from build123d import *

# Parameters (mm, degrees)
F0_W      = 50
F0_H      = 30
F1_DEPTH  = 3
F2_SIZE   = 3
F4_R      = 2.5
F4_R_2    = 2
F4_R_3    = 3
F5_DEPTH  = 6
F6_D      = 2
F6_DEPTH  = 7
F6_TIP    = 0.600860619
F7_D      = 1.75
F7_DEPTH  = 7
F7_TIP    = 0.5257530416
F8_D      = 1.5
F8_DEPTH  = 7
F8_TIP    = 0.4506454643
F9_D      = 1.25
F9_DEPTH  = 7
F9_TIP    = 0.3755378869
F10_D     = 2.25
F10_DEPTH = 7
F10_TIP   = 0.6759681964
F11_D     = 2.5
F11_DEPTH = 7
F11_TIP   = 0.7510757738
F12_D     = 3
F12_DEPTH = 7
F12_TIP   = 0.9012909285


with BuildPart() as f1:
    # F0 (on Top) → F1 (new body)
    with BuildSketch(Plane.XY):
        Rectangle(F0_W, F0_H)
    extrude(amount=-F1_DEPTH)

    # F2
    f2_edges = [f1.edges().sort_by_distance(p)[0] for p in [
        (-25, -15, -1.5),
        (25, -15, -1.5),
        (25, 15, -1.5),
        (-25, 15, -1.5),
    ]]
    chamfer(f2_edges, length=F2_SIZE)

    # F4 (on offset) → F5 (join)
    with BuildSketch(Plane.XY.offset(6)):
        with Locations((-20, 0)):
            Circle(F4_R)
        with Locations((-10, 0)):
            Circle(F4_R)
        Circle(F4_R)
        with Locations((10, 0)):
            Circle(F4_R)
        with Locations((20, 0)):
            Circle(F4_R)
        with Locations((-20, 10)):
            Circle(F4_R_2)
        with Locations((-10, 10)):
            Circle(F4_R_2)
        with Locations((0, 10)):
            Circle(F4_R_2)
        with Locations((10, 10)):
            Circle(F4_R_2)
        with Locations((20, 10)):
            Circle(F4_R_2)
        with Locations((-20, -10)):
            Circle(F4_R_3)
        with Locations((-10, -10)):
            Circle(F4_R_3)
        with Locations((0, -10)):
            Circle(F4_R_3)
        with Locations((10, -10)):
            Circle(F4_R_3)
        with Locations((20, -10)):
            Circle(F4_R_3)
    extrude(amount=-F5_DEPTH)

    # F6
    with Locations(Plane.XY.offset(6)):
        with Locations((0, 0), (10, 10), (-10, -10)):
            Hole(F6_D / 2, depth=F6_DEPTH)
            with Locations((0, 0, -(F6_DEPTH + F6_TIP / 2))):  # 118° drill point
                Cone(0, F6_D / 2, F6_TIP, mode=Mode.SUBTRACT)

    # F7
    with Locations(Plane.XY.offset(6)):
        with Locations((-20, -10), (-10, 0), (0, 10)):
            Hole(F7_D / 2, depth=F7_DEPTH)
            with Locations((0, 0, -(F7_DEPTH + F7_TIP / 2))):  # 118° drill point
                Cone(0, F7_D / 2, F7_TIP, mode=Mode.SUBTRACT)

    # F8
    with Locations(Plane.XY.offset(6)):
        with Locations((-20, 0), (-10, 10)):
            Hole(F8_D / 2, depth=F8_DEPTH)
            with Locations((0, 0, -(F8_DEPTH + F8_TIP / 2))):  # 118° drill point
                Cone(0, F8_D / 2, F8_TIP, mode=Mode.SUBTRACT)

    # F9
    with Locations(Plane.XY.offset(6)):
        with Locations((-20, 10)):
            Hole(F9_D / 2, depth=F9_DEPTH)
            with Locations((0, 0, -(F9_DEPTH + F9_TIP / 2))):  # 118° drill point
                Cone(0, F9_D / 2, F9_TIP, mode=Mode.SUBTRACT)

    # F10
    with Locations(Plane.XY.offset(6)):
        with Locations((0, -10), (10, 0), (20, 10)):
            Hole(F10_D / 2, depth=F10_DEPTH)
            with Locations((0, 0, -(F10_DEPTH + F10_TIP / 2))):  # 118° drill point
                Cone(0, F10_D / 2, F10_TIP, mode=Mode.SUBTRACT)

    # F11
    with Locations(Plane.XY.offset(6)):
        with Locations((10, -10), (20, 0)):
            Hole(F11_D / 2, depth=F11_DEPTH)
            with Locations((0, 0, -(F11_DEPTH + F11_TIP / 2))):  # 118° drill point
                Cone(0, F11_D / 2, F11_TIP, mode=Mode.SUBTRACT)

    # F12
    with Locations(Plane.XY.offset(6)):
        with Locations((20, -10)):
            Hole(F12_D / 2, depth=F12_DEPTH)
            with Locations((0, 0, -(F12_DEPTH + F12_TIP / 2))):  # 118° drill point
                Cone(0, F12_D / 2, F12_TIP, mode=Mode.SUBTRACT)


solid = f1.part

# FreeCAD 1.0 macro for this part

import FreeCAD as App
import Part
import Sketcher
from FreeCAD import Vector
Q = App.Units.Quantity


def edges_at(feature, points):
    """Names of the edges that pass closest to the given points."""
    edges = feature.Shape.Edges
    near = lambda p: min(range(len(edges)), key=lambda i: edges[i].distToShape(Part.Vertex(*p))[0])
    return sorted({f"Edge{near(p) + 1}" for p in points})

doc = App.newDocument("Part")
body = doc.addObject("PartDesign::Body", "Body")

sketch1 = body.newObject("Sketcher::SketchObject", "Sketch")
sketch1.AttachmentSupport = (doc.getObject("XY_Plane"), [""])
sketch1.MapMode = "FlatFace"
sketch1.addGeometry(Part.LineSegment(Vector(-25, 15, 0), Vector(-25, -15, 0)), False)
sketch1.addGeometry(Part.LineSegment(Vector(-25, -15, 0), Vector(25, -15, 0)), False)
sketch1.addGeometry(Part.LineSegment(Vector(25, -15, 0), Vector(25, 15, 0)), False)
sketch1.addGeometry(Part.LineSegment(Vector(25, 15, 0), Vector(-25, 15, 0)), False)
sketch1.addConstraint(Sketcher.Constraint("Coincident", 0, 2, 1, 1))
sketch1.addConstraint(Sketcher.Constraint("Coincident", 1, 2, 2, 1))
sketch1.addConstraint(Sketcher.Constraint("Coincident", 2, 2, 3, 1))
sketch1.addConstraint(Sketcher.Constraint("Coincident", 3, 2, 0, 1))
sketch1.addConstraint(Sketcher.Constraint("Vertical", 0))
sketch1.addConstraint(Sketcher.Constraint("Horizontal", 1))
sketch1.addConstraint(Sketcher.Constraint("Vertical", 2))
sketch1.addConstraint(Sketcher.Constraint("Horizontal", 3))
sketch1.addConstraint(Sketcher.Constraint("Symmetric", 0, 2, 2, 2, -1, 1))
sketch1.addConstraint(Sketcher.Constraint("DistanceX", 1, 1, 1, 2, Q("50 mm")))
sketch1.addConstraint(Sketcher.Constraint("DistanceY", 0, 2, 0, 1, Q("30 mm")))
pad1 = body.newObject("PartDesign::Pad", "Pad")
pad1.Profile = sketch1
pad1.Length = 3
pad1.Reversed = True
doc.recompute()

chamfer = body.newObject("PartDesign::Chamfer", "Chamfer")
chamfer.Base = (pad1, edges_at(pad1, [
    (-25, -15, -1.5),
    (25, -15, -1.5),
    (25, 15, -1.5),
    (-25, 15, -1.5),
]))
chamfer.Size = 3

sketch2 = body.newObject("Sketcher::SketchObject", "Sketch001")
sketch2.AttachmentSupport = (doc.getObject("XY_Plane"), [""])
sketch2.MapMode = "FlatFace"
sketch2.AttachmentOffset = App.Placement(Vector(0, 0, 6), App.Rotation())
sketch2.addGeometry(Part.Circle(Vector(-20, 0, 0), Vector(0, 0, 1), 2.5), False)
sketch2.addGeometry(Part.Circle(Vector(-10, 0, 0), Vector(0, 0, 1), 2.5), False)
sketch2.addGeometry(Part.Circle(Vector(0, 0, 0), Vector(0, 0, 1), 2.5), False)
sketch2.addGeometry(Part.Circle(Vector(10, 0, 0), Vector(0, 0, 1), 2.5), False)
sketch2.addGeometry(Part.Circle(Vector(20, 0, 0), Vector(0, 0, 1), 2.5), False)
sketch2.addGeometry(Part.Circle(Vector(-20, 10, 0), Vector(0, 0, 1), 2), False)
sketch2.addGeometry(Part.Circle(Vector(-10, 10, 0), Vector(0, 0, 1), 2), False)
sketch2.addGeometry(Part.Circle(Vector(0, 10, 0), Vector(0, 0, 1), 2), False)
sketch2.addGeometry(Part.Circle(Vector(10, 10, 0), Vector(0, 0, 1), 2), False)
sketch2.addGeometry(Part.Circle(Vector(20, 10, 0), Vector(0, 0, 1), 2), False)
sketch2.addGeometry(Part.Circle(Vector(-20, -10, 0), Vector(0, 0, 1), 3), False)
sketch2.addGeometry(Part.Circle(Vector(-10, -10, 0), Vector(0, 0, 1), 3), False)
sketch2.addGeometry(Part.Circle(Vector(0, -10, 0), Vector(0, 0, 1), 3), False)
sketch2.addGeometry(Part.Circle(Vector(10, -10, 0), Vector(0, 0, 1), 3), False)
sketch2.addGeometry(Part.Circle(Vector(20, -10, 0), Vector(0, 0, 1), 3), False)
sketch2.addConstraint(Sketcher.Constraint("Coincident", 2, 3, -1, 1))
sketch2.addConstraint(Sketcher.Constraint("Equal", 0, 1))
sketch2.addConstraint(Sketcher.Constraint("Equal", 1, 2))
sketch2.addConstraint(Sketcher.Constraint("Equal", 2, 3))
sketch2.addConstraint(Sketcher.Constraint("Equal", 3, 4))
sketch2.addConstraint(Sketcher.Constraint("Equal", 5, 6))
sketch2.addConstraint(Sketcher.Constraint("Equal", 6, 7))
sketch2.addConstraint(Sketcher.Constraint("Equal", 7, 8))
sketch2.addConstraint(Sketcher.Constraint("Equal", 8, 9))
sketch2.addConstraint(Sketcher.Constraint("Equal", 10, 11))
sketch2.addConstraint(Sketcher.Constraint("Equal", 11, 12))
sketch2.addConstraint(Sketcher.Constraint("Equal", 12, 13))
sketch2.addConstraint(Sketcher.Constraint("Equal", 13, 14))
sketch2.addConstraint(Sketcher.Constraint("Symmetric", 1, 3, 3, 3, -1, 1))
sketch2.addConstraint(Sketcher.Constraint("Symmetric", 0, 3, 4, 3, -1, 1))
sketch2.addConstraint(Sketcher.Constraint("Symmetric", 9, 3, 10, 3, -1, 1))
sketch2.addConstraint(Sketcher.Constraint("Symmetric", 8, 3, 11, 3, -1, 1))
sketch2.addConstraint(Sketcher.Constraint("Symmetric", 7, 3, 12, 3, -1, 1))
sketch2.addConstraint(Sketcher.Constraint("Symmetric", 6, 3, 13, 3, -1, 1))
sketch2.addConstraint(Sketcher.Constraint("Symmetric", 5, 3, 14, 3, -1, 1))
sketch2.addConstraint(Sketcher.Constraint("Symmetric", 6, 3, 8, 3, -2))
sketch2.addConstraint(Sketcher.Constraint("Symmetric", 5, 3, 9, 3, -2))
sketch2.addConstraint(Sketcher.Constraint("PointOnObject", 0, 3, -1))
sketch2.addConstraint(Sketcher.Constraint("PointOnObject", 1, 3, -1))
sketch2.addConstraint(Sketcher.Constraint("PointOnObject", 7, 3, -2))
sketch2.addConstraint(Sketcher.Constraint("Horizontal", 5, 3, 6, 3))
sketch2.addConstraint(Sketcher.Constraint("Horizontal", 6, 3, 7, 3))
sketch2.addConstraint(Sketcher.Constraint("Vertical", 0, 3, 5, 3))
sketch2.addConstraint(Sketcher.Constraint("Vertical", 1, 3, 6, 3))
sketch2.addConstraint(Sketcher.Constraint("Diameter", 0, Q("5 mm")))
sketch2.addConstraint(Sketcher.Constraint("Diameter", 5, Q("4 mm")))
sketch2.addConstraint(Sketcher.Constraint("Diameter", 10, Q("6 mm")))
sketch2.addConstraint(Sketcher.Constraint("DistanceX", 0, 3, -1, 1, Q("20 mm")))
sketch2.addConstraint(Sketcher.Constraint("DistanceX", 1, 3, -1, 1, Q("10 mm")))
sketch2.addConstraint(Sketcher.Constraint("DistanceY", -1, 1, 5, 3, Q("10 mm")))
pad2 = body.newObject("PartDesign::Pad", "Pad001")
pad2.Profile = sketch2
pad2.Length = 6
pad2.Reversed = True

sketch3 = body.newObject("Sketcher::SketchObject", "Sketch002")
sketch3.AttachmentSupport = (doc.getObject("XY_Plane"), [""])
sketch3.MapMode = "FlatFace"
sketch3.AttachmentOffset = App.Placement(Vector(0, 0, 6), App.Rotation())
sketch3.addGeometry(Part.Circle(Vector(0, 0, 0), Vector(0, 0, 1), 1), False)
sketch3.addGeometry(Part.Circle(Vector(10, 10, 0), Vector(0, 0, 1), 1), False)
sketch3.addGeometry(Part.Circle(Vector(-10, -10, 0), Vector(0, 0, 1), 1), False)
sketch3.addConstraint(Sketcher.Constraint("Coincident", 0, 3, -1, 1))
sketch3.addConstraint(Sketcher.Constraint("Equal", 0, 1))
sketch3.addConstraint(Sketcher.Constraint("Equal", 1, 2))
sketch3.addConstraint(Sketcher.Constraint("Symmetric", 1, 3, 2, 3, -1, 1))
sketch3.addConstraint(Sketcher.Constraint("Diameter", 0, Q("2 mm")))
sketch3.addConstraint(Sketcher.Constraint("DistanceX", -1, 1, 1, 3, Q("10 mm")))
sketch3.addConstraint(Sketcher.Constraint("DistanceY", -1, 1, 1, 3, Q("10 mm")))
doc.recompute()
hole = body.newObject("PartDesign::Hole", "Hole")
hole.Profile = sketch3
hole.ThreadType = "None"
hole.Diameter = 2
hole.DepthType = "Dimension"
hole.Depth = 7
hole.DrillPoint = "Angled"
hole.DrillPointAngle = 118

sketch4 = body.newObject("Sketcher::SketchObject", "Sketch003")
sketch4.AttachmentSupport = (doc.getObject("XY_Plane"), [""])
sketch4.MapMode = "FlatFace"
sketch4.AttachmentOffset = App.Placement(Vector(0, 0, 6), App.Rotation())
sketch4.addGeometry(Part.Circle(Vector(-20, -10, 0), Vector(0, 0, 1), 0.875), False)
sketch4.addGeometry(Part.Circle(Vector(-10, 0, 0), Vector(0, 0, 1), 0.875), False)
sketch4.addGeometry(Part.Circle(Vector(0, 10, 0), Vector(0, 0, 1), 0.875), False)
sketch4.addConstraint(Sketcher.Constraint("Equal", 0, 1))
sketch4.addConstraint(Sketcher.Constraint("Equal", 1, 2))
sketch4.addConstraint(Sketcher.Constraint("PointOnObject", 1, 3, -1))
sketch4.addConstraint(Sketcher.Constraint("PointOnObject", 2, 3, -2))
sketch4.addConstraint(Sketcher.Constraint("Diameter", 0, Q("1.75 mm")))
sketch4.addConstraint(Sketcher.Constraint("DistanceX", 0, 3, -1, 1, Q("20 mm")))
sketch4.addConstraint(Sketcher.Constraint("DistanceY", 0, 3, -1, 1, Q("10 mm")))
sketch4.addConstraint(Sketcher.Constraint("DistanceX", 1, 3, -1, 1, Q("10 mm")))
sketch4.addConstraint(Sketcher.Constraint("DistanceY", -1, 1, 2, 3, Q("10 mm")))
doc.recompute()
hole2 = body.newObject("PartDesign::Hole", "Hole001")
hole2.Profile = sketch4
hole2.ThreadType = "None"
hole2.Diameter = 1.75
hole2.DepthType = "Dimension"
hole2.Depth = 7
hole2.DrillPoint = "Angled"
hole2.DrillPointAngle = 118

sketch5 = body.newObject("Sketcher::SketchObject", "Sketch004")
sketch5.AttachmentSupport = (doc.getObject("XY_Plane"), [""])
sketch5.MapMode = "FlatFace"
sketch5.AttachmentOffset = App.Placement(Vector(0, 0, 6), App.Rotation())
sketch5.addGeometry(Part.Circle(Vector(-20, 0, 0), Vector(0, 0, 1), 0.75), False)
sketch5.addGeometry(Part.Circle(Vector(-10, 10, 0), Vector(0, 0, 1), 0.75), False)
sketch5.addConstraint(Sketcher.Constraint("Equal", 0, 1))
sketch5.addConstraint(Sketcher.Constraint("PointOnObject", 0, 3, -1))
sketch5.addConstraint(Sketcher.Constraint("Diameter", 0, Q("1.5 mm")))
sketch5.addConstraint(Sketcher.Constraint("DistanceX", 0, 3, -1, 1, Q("20 mm")))
sketch5.addConstraint(Sketcher.Constraint("DistanceX", 1, 3, -1, 1, Q("10 mm")))
sketch5.addConstraint(Sketcher.Constraint("DistanceY", -1, 1, 1, 3, Q("10 mm")))
doc.recompute()
hole3 = body.newObject("PartDesign::Hole", "Hole002")
hole3.Profile = sketch5
hole3.ThreadType = "None"
hole3.Diameter = 1.5
hole3.DepthType = "Dimension"
hole3.Depth = 7
hole3.DrillPoint = "Angled"
hole3.DrillPointAngle = 118

sketch6 = body.newObject("Sketcher::SketchObject", "Sketch005")
sketch6.AttachmentSupport = (doc.getObject("XY_Plane"), [""])
sketch6.MapMode = "FlatFace"
sketch6.AttachmentOffset = App.Placement(Vector(0, 0, 6), App.Rotation())
sketch6.addGeometry(Part.Circle(Vector(-20, 10, 0), Vector(0, 0, 1), 0.625), False)
sketch6.addConstraint(Sketcher.Constraint("Diameter", 0, Q("1.25 mm")))
sketch6.addConstraint(Sketcher.Constraint("DistanceX", 0, 3, -1, 1, Q("20 mm")))
sketch6.addConstraint(Sketcher.Constraint("DistanceY", -1, 1, 0, 3, Q("10 mm")))
doc.recompute()
hole4 = body.newObject("PartDesign::Hole", "Hole003")
hole4.Profile = sketch6
hole4.ThreadType = "None"
hole4.Diameter = 1.25
hole4.DepthType = "Dimension"
hole4.Depth = 7
hole4.DrillPoint = "Angled"
hole4.DrillPointAngle = 118

sketch7 = body.newObject("Sketcher::SketchObject", "Sketch006")
sketch7.AttachmentSupport = (doc.getObject("XY_Plane"), [""])
sketch7.MapMode = "FlatFace"
sketch7.AttachmentOffset = App.Placement(Vector(0, 0, 6), App.Rotation())
sketch7.addGeometry(Part.Circle(Vector(0, -10, 0), Vector(0, 0, 1), 1.125), False)
sketch7.addGeometry(Part.Circle(Vector(10, 0, 0), Vector(0, 0, 1), 1.125), False)
sketch7.addGeometry(Part.Circle(Vector(20, 10, 0), Vector(0, 0, 1), 1.125), False)
sketch7.addConstraint(Sketcher.Constraint("Equal", 0, 1))
sketch7.addConstraint(Sketcher.Constraint("Equal", 1, 2))
sketch7.addConstraint(Sketcher.Constraint("PointOnObject", 0, 3, -2))
sketch7.addConstraint(Sketcher.Constraint("PointOnObject", 1, 3, -1))
sketch7.addConstraint(Sketcher.Constraint("Diameter", 0, Q("2.25 mm")))
sketch7.addConstraint(Sketcher.Constraint("DistanceY", 0, 3, -1, 1, Q("10 mm")))
sketch7.addConstraint(Sketcher.Constraint("DistanceX", -1, 1, 1, 3, Q("10 mm")))
sketch7.addConstraint(Sketcher.Constraint("DistanceX", -1, 1, 2, 3, Q("20 mm")))
sketch7.addConstraint(Sketcher.Constraint("DistanceY", -1, 1, 2, 3, Q("10 mm")))
doc.recompute()
hole5 = body.newObject("PartDesign::Hole", "Hole004")
hole5.Profile = sketch7
hole5.ThreadType = "None"
hole5.Diameter = 2.25
hole5.DepthType = "Dimension"
hole5.Depth = 7
hole5.DrillPoint = "Angled"
hole5.DrillPointAngle = 118

sketch8 = body.newObject("Sketcher::SketchObject", "Sketch007")
sketch8.AttachmentSupport = (doc.getObject("XY_Plane"), [""])
sketch8.MapMode = "FlatFace"
sketch8.AttachmentOffset = App.Placement(Vector(0, 0, 6), App.Rotation())
sketch8.addGeometry(Part.Circle(Vector(10, -10, 0), Vector(0, 0, 1), 1.25), False)
sketch8.addGeometry(Part.Circle(Vector(20, 0, 0), Vector(0, 0, 1), 1.25), False)
sketch8.addConstraint(Sketcher.Constraint("Equal", 0, 1))
sketch8.addConstraint(Sketcher.Constraint("PointOnObject", 1, 3, -1))
sketch8.addConstraint(Sketcher.Constraint("Diameter", 0, Q("2.5 mm")))
sketch8.addConstraint(Sketcher.Constraint("DistanceX", -1, 1, 0, 3, Q("10 mm")))
sketch8.addConstraint(Sketcher.Constraint("DistanceY", 0, 3, -1, 1, Q("10 mm")))
sketch8.addConstraint(Sketcher.Constraint("DistanceX", -1, 1, 1, 3, Q("20 mm")))
doc.recompute()
hole6 = body.newObject("PartDesign::Hole", "Hole005")
hole6.Profile = sketch8
hole6.ThreadType = "None"
hole6.Diameter = 2.5
hole6.DepthType = "Dimension"
hole6.Depth = 7
hole6.DrillPoint = "Angled"
hole6.DrillPointAngle = 118

sketch9 = body.newObject("Sketcher::SketchObject", "Sketch008")
sketch9.AttachmentSupport = (doc.getObject("XY_Plane"), [""])
sketch9.MapMode = "FlatFace"
sketch9.AttachmentOffset = App.Placement(Vector(0, 0, 6), App.Rotation())
sketch9.addGeometry(Part.Circle(Vector(20, -10, 0), Vector(0, 0, 1), 1.5), False)
sketch9.addConstraint(Sketcher.Constraint("Diameter", 0, Q("3 mm")))
sketch9.addConstraint(Sketcher.Constraint("DistanceX", -1, 1, 0, 3, Q("20 mm")))
sketch9.addConstraint(Sketcher.Constraint("DistanceY", 0, 3, -1, 1, Q("10 mm")))
doc.recompute()
hole7 = body.newObject("PartDesign::Hole", "Hole006")
hole7.Profile = sketch9
hole7.ThreadType = "None"
hole7.Diameter = 3
hole7.DepthType = "Dimension"
hole7.Depth = 7
hole7.DrillPoint = "Angled"
hole7.DrillPointAngle = 118

doc.recompute()
